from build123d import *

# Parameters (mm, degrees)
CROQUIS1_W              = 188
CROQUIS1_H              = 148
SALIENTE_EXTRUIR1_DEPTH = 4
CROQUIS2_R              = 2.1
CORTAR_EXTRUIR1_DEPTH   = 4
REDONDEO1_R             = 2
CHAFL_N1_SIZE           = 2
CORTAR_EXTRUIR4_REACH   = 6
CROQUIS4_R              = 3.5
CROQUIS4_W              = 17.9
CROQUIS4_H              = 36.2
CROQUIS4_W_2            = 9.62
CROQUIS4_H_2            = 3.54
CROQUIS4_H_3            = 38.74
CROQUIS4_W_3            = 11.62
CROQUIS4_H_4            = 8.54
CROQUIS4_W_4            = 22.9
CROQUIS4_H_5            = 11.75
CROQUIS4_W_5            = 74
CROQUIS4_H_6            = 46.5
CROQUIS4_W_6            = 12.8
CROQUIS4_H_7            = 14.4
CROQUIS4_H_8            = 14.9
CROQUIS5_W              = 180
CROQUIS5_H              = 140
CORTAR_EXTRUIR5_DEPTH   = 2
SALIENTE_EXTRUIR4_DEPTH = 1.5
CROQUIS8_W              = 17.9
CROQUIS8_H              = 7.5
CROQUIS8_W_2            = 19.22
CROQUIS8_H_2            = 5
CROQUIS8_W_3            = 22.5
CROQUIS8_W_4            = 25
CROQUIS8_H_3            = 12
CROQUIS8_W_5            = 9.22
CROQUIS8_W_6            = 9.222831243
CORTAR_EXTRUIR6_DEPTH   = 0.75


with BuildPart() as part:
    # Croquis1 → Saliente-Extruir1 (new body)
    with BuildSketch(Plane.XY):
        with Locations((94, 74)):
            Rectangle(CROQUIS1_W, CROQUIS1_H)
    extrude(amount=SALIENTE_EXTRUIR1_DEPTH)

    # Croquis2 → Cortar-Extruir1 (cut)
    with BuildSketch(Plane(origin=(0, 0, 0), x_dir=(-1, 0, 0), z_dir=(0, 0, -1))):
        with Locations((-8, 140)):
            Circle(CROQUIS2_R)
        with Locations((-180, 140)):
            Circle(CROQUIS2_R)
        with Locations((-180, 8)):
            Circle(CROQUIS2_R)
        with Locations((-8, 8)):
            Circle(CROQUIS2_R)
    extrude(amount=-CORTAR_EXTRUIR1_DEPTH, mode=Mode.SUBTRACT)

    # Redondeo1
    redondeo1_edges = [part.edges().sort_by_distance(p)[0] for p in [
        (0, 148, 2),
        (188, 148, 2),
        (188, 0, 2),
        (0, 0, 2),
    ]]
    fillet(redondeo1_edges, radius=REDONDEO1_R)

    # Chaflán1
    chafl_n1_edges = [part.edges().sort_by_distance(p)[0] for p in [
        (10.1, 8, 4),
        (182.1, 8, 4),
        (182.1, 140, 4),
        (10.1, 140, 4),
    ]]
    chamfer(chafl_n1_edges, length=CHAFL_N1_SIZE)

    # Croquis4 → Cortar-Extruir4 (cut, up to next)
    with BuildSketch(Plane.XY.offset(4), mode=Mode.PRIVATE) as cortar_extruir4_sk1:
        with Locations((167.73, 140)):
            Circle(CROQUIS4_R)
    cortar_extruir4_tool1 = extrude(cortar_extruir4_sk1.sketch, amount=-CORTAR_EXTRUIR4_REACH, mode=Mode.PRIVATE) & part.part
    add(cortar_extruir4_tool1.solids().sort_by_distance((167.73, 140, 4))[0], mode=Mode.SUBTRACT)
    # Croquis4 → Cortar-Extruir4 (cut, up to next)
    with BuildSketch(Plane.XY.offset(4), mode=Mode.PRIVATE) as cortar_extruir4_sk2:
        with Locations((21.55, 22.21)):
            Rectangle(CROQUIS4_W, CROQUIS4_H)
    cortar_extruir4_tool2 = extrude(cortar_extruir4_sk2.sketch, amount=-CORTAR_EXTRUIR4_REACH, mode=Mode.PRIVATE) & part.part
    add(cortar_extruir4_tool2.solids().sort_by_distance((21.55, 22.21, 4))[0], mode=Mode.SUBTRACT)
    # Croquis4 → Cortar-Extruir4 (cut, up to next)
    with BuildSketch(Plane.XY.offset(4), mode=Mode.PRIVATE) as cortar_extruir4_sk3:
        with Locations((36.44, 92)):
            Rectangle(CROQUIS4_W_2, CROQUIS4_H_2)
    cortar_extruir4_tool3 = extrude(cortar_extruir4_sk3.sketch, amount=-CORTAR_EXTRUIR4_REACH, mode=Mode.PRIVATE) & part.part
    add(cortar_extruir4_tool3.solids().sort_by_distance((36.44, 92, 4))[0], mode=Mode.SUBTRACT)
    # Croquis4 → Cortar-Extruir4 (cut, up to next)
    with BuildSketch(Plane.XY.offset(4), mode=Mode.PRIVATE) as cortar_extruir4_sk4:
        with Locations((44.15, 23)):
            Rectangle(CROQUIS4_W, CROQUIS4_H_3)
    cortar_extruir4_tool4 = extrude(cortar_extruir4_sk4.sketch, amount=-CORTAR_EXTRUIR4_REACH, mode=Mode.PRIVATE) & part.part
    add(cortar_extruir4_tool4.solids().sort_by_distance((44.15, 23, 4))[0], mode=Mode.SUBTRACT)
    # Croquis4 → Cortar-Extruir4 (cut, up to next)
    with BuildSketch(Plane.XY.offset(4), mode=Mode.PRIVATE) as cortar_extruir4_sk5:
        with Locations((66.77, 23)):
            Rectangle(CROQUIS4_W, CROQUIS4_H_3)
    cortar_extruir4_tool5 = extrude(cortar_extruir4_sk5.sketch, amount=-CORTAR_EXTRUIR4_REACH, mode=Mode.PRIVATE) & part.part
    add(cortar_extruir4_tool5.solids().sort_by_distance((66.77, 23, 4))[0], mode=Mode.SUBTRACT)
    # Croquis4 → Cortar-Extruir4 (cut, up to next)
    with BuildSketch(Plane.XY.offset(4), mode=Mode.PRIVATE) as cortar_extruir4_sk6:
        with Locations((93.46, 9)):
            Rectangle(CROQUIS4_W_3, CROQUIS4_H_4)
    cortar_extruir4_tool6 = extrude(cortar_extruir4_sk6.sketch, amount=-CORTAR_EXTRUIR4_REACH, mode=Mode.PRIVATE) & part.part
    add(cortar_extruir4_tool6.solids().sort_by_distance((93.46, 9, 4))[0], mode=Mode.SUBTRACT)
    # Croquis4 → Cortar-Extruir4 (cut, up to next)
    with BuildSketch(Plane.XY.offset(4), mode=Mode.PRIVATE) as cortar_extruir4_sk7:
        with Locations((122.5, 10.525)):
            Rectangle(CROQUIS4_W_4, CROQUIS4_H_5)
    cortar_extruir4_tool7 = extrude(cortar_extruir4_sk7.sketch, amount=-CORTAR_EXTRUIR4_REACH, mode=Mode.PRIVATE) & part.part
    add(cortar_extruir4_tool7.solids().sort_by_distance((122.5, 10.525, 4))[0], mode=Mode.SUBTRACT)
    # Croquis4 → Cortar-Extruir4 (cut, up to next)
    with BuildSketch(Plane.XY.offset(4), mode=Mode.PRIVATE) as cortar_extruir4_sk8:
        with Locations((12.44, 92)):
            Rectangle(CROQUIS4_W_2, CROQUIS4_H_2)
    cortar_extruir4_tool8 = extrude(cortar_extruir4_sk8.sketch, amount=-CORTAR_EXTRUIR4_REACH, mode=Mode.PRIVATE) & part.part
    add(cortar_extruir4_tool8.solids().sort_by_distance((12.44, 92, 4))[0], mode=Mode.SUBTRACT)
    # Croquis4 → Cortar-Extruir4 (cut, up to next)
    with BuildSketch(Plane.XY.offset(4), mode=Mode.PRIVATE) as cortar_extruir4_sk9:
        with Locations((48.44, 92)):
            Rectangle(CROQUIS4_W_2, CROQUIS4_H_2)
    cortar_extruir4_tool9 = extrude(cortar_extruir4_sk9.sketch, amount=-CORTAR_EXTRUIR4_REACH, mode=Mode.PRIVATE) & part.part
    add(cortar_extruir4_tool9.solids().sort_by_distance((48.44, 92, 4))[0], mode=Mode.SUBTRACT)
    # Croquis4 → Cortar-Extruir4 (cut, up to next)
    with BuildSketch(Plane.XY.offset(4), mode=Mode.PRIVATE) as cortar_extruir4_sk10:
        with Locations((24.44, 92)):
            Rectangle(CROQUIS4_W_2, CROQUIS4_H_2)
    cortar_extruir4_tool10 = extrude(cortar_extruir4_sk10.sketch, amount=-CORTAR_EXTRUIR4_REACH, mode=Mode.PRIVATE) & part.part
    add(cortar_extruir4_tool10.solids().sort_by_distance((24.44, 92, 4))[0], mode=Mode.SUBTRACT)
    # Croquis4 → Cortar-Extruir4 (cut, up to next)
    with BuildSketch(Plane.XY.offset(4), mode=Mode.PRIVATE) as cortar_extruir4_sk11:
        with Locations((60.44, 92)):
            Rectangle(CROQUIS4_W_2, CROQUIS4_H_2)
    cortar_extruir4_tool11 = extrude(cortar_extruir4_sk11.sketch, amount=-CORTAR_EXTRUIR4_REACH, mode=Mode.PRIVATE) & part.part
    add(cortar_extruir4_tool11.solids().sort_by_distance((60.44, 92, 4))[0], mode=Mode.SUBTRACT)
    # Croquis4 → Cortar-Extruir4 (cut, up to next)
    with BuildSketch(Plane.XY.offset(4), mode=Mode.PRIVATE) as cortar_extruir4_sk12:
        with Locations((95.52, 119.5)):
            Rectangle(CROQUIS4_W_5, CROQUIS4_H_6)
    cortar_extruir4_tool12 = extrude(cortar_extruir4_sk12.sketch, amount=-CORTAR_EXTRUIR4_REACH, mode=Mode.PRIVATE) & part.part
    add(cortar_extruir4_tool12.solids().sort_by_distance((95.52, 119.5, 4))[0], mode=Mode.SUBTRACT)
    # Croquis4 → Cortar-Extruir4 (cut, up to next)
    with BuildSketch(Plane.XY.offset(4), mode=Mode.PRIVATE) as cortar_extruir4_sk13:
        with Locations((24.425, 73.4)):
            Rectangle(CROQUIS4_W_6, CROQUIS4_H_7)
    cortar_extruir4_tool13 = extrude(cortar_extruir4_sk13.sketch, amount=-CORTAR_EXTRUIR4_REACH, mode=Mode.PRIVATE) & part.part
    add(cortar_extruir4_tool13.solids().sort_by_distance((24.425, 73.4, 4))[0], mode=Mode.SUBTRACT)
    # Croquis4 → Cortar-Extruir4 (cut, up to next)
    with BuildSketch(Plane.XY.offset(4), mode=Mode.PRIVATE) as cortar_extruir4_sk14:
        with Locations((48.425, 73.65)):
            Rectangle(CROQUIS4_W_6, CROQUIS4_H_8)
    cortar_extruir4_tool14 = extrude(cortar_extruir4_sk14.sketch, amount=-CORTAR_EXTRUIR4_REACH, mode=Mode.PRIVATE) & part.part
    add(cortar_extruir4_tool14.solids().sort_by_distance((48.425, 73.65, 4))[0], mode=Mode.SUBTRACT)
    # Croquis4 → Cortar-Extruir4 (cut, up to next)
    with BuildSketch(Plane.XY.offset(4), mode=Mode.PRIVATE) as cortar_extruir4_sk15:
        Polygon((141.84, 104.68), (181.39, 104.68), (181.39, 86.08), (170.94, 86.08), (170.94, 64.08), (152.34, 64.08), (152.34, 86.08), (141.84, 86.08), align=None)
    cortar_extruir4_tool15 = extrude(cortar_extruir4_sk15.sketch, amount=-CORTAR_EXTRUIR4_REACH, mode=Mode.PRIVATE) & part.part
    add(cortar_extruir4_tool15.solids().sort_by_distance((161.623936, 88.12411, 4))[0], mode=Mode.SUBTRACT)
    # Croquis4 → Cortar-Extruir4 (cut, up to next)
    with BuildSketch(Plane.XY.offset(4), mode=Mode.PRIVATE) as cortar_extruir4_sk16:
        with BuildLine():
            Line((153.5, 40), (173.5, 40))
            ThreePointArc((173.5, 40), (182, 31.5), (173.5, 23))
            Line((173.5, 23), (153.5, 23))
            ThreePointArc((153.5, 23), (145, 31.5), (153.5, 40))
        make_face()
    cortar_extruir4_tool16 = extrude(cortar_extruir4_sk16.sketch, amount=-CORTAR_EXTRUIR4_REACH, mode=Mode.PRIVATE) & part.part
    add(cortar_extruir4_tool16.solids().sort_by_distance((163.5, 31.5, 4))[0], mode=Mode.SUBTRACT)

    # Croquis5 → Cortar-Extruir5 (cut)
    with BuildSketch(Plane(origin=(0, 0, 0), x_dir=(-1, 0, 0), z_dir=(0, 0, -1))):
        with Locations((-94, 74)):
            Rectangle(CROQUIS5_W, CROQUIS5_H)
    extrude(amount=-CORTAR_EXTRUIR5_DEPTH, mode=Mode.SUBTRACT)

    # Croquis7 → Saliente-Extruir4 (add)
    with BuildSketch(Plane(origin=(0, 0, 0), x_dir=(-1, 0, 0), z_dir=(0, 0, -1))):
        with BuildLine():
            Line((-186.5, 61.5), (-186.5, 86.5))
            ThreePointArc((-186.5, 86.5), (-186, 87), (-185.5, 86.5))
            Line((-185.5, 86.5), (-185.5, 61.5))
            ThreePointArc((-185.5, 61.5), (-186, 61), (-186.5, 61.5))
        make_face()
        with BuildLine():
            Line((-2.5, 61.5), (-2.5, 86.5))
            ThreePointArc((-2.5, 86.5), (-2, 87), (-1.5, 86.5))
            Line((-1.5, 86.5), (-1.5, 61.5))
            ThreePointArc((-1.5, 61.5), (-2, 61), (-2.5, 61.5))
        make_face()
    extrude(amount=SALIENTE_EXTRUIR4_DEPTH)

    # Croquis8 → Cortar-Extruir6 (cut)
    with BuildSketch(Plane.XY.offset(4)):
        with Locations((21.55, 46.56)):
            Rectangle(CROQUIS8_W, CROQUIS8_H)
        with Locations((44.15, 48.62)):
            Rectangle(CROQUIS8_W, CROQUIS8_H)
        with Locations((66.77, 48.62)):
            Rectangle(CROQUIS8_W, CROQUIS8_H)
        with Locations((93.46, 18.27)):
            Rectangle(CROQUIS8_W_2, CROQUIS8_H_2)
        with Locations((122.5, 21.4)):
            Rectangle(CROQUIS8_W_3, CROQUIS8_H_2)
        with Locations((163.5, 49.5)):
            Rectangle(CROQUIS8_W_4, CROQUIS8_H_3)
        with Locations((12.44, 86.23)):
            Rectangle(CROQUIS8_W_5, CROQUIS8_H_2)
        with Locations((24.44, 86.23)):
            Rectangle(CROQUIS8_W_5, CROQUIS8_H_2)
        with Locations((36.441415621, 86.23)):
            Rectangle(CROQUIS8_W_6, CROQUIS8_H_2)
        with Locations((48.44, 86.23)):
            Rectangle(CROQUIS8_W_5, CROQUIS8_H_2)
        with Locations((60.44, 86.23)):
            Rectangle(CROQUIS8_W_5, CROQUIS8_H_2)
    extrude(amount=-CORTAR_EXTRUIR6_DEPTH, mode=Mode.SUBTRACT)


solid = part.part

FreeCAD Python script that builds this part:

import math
import FreeCAD as App
import Part
import Sketcher
Q = App.Units.Quantity


def edges_at(feature, points):
    """Names of the edges that pass closest to the given points."""
    edges = feature.Shape.Edges
    near = lambda p: min(range(len(edges)), key=lambda i: edges[i].distToShape(Part.Vertex(*p))[0])
    return sorted({f"Edge{near(p) + 1}" for p in points})

doc = App.newDocument("Part")
body = doc.addObject("PartDesign::Body", "Body")

sketch1 = doc.addObject("Sketcher::SketchObject", "Sketch")
body.addObject(sketch1)
sketch1.AttachmentSupport = (doc.XY_Plane, [""])
sketch1.MapMode = "FlatFace"
sketch1.addGeometry([
    Part.LineSegment(App.Vector(0, 148, 0), App.Vector(0, 0, 0)),
    Part.LineSegment(App.Vector(0, 0, 0), App.Vector(188, 0, 0)),
    Part.LineSegment(App.Vector(188, 0, 0), App.Vector(188, 148, 0)),
    Part.LineSegment(App.Vector(188, 148, 0), App.Vector(0, 148, 0)),
], False)
sketch1.addConstraint([
    Sketcher.Constraint("Coincident", 0, 2, 1, 1),
    Sketcher.Constraint("Coincident", 1, 2, 2, 1),
    Sketcher.Constraint("Coincident", 2, 2, 3, 1),
    Sketcher.Constraint("Coincident", 3, 2, 0, 1),
    Sketcher.Constraint("Vertical", 0),
    Sketcher.Constraint("Horizontal", 1),
    Sketcher.Constraint("Vertical", 2),
    Sketcher.Constraint("Horizontal", 3),
    Sketcher.Constraint("Coincident", 0, 2, -1, 1),
    Sketcher.Constraint("DistanceX", 1, 1, 1, 2, Q("188 mm")),
    Sketcher.Constraint("DistanceY", 0, 2, 0, 1, Q("148 mm")),
])
pad1 = doc.addObject("PartDesign::Pad", "Pad")
body.addObject(pad1)
pad1.Profile = sketch1
pad1.Length = 4

sketch2 = doc.addObject("Sketcher::SketchObject", "Sketch001")
body.addObject(sketch2)
sketch2.AttachmentSupport = (doc.XY_Plane, [""])
sketch2.MapMode = "FlatFace"
sketch2.addGeometry([
    Part.Circle(App.Vector(8, 140, 0), App.Vector(0, 0, 1), 2.1),
    Part.Circle(App.Vector(180, 140, 0), App.Vector(0, 0, 1), 2.1),
    Part.Circle(App.Vector(180, 8, 0), App.Vector(0, 0, 1), 2.1),
    Part.Circle(App.Vector(8, 8, 0), App.Vector(0, 0, 1), 2.1),
], False)
sketch2.addConstraint([
    Sketcher.Constraint("Equal", 0, 1),
    Sketcher.Constraint("Equal", 1, 2),
    Sketcher.Constraint("Equal", 2, 3),
    Sketcher.Constraint("Horizontal", 0, 3, 1, 3),
    Sketcher.Constraint("Horizontal", 2, 3, 3, 3),
    Sketcher.Constraint("Vertical", 1, 3, 2, 3),
    Sketcher.Constraint("Vertical", 0, 3, 3, 3),
    Sketcher.Constraint("Diameter", 0, Q("4.2 mm")),
    Sketcher.Constraint("DistanceX", -1, 1, 0, 3, Q("8 mm")),
    Sketcher.Constraint("DistanceY", -1, 1, 0, 3, Q("140 mm")),
    Sketcher.Constraint("DistanceX", -1, 1, 1, 3, Q("180 mm")),
    Sketcher.Constraint("DistanceY", -1, 1, 2, 3, Q("8 mm")),
])
pocket1 = doc.addObject("PartDesign::Pocket", "Pocket")
body.addObject(pocket1)
pocket1.Profile = sketch2
pocket1.Length = 4
pocket1.Reversed = True
doc.recompute()

fillet = doc.addObject("PartDesign::Fillet", "Fillet")
body.addObject(fillet)
fillet.Base = (pocket1, edges_at(pocket1, [
    (0, 148, 2),
    (188, 148, 2),
    (188, 0, 2),
    (0, 0, 2),
]))
fillet.Radius = 2
doc.recompute()

chamfer = doc.addObject("PartDesign::Chamfer", "Chamfer")
body.addObject(chamfer)
chamfer.Base = (fillet, edges_at(fillet, [
    (10.1, 8, 4),
    (182.1, 8, 4),
    (182.1, 140, 4),
    (10.1, 140, 4),
]))
chamfer.Size = 2

sketch3 = doc.addObject("Sketcher::SketchObject", "Sketch002")
body.addObject(sketch3)
sketch3.AttachmentSupport = (doc.XY_Plane, [""])
sketch3.MapMode = "FlatFace"
sketch3.AttachmentOffset = App.Placement(App.Vector(0, 0, 4), App.Rotation())
sketch3.addGeometry(Part.Circle(App.Vector(167.7, 140, 0), App.Vector(0, 0, 1), 3.5), False)
sketch3.addConstraint([
    Sketcher.Constraint("Diameter", 0, Q("7 mm")),
    Sketcher.Constraint("DistanceY", -1, 1, 0, 3, Q("140 mm")),
    Sketcher.Constraint("DistanceX", -1, 1, 0, 3, Q("167.73 mm")),
])
pocket2 = doc.addObject("PartDesign::Pocket", "Pocket001")
body.addObject(pocket2)
pocket2.Profile = sketch3
pocket2.Type = "UpToFirst"

sketch4 = doc.addObject("Sketcher::SketchObject", "Sketch003")
body.addObject(sketch4)
sketch4.AttachmentSupport = (doc.XY_Plane, [""])
sketch4.MapMode = "FlatFace"
sketch4.AttachmentOffset = App.Placement(App.Vector(0, 0, 4), App.Rotation())
sketch4.addGeometry([
    Part.LineSegment(App.Vector(13, 40, 0), App.Vector(13, 4, 0)),
    Part.LineSegment(App.Vector(13, 4, 0), App.Vector(30, 4, 0)),
    Part.LineSegment(App.Vector(30, 4, 0), App.Vector(30, 40, 0)),
    Part.LineSegment(App.Vector(30, 40, 0), App.Vector(13, 40, 0)),
], False)
sketch4.addConstraint([
    Sketcher.Constraint("Coincident", 0, 2, 1, 1),
    Sketcher.Constraint("Coincident", 1, 2, 2, 1),
    Sketcher.Constraint("Coincident", 2, 2, 3, 1),
    Sketcher.Constraint("Coincident", 3, 2, 0, 1),
    Sketcher.Constraint("Vertical", 0),
    Sketcher.Constraint("Horizontal", 1),
    Sketcher.Constraint("Vertical", 2),
    Sketcher.Constraint("Horizontal", 3),
    Sketcher.Constraint("DistanceX", 1, 1, 1, 2, Q("17.9 mm")),
    Sketcher.Constraint("DistanceY", 0, 2, 0, 1, Q("36.2 mm")),
    Sketcher.Constraint("DistanceX", -1, 1, 0, 2, Q("12.6 mm")),
    Sketcher.Constraint("DistanceY", -1, 1, 0, 2, Q("4.11 mm")),
])
pocket3 = doc.addObject("PartDesign::Pocket", "Pocket002")
body.addObject(pocket3)
pocket3.Profile = sketch4
pocket3.Type = "UpToFirst"

sketch5 = doc.addObject("Sketcher::SketchObject", "Sketch004")
body.addObject(sketch5)
sketch5.AttachmentSupport = (doc.XY_Plane, [""])
sketch5.MapMode = "FlatFace"
sketch5.AttachmentOffset = App.Placement(App.Vector(0, 0, 4), App.Rotation())
sketch5.addGeometry([
    Part.LineSegment(App.Vector(31.6, 93.8, 0), App.Vector(31.6, 90.2, 0)),
    Part.LineSegment(App.Vector(31.6, 90.2, 0), App.Vector(41.2, 90.2, 0)),
    Part.LineSegment(App.Vector(41.2, 90.2, 0), App.Vector(41.2, 93.8, 0)),
    Part.LineSegment(App.Vector(41.2, 93.8, 0), App.Vector(31.6, 93.8, 0)),
], False)
sketch5.addConstraint([
    Sketcher.Constraint("Coincident", 0, 2, 1, 1),
    Sketcher.Constraint("Coincident", 1, 2, 2, 1),
    Sketcher.Constraint("Coincident", 2, 2, 3, 1),
    Sketcher.Constraint("Coincident", 3, 2, 0, 1),
    Sketcher.Constraint("Vertical", 0),
    Sketcher.Constraint("Horizontal", 1),
    Sketcher.Constraint("Vertical", 2),
    Sketcher.Constraint("Horizontal", 3),
    Sketcher.Constraint("DistanceX", 1, 1, 1, 2, Q("9.62 mm")),
    Sketcher.Constraint("DistanceY", 0, 2, 0, 1, Q("3.54 mm")),
    Sketcher.Constraint("DistanceX", -1, 1, 0, 2, Q("31.63 mm")),
    Sketcher.Constraint("DistanceY", -1, 1, 0, 2, Q("90.23 mm")),
])
pocket4 = doc.addObject("PartDesign::Pocket", "Pocket003")
body.addObject(pocket4)
pocket4.Profile = sketch5
pocket4.Type = "UpToFirst"

sketch6 = doc.addObject("Sketcher::SketchObject", "Sketch005")
body.addObject(sketch6)
sketch6.AttachmentSupport = (doc.XY_Plane, [""])
sketch6.MapMode = "FlatFace"
sketch6.AttachmentOffset = App.Placement(App.Vector(0, 0, 4), App.Rotation())
sketch6.addGeometry([
    Part.LineSegment(App.Vector(35, 42, 0), App.Vector(35, 4, 0)),
    Part.LineSegment(App.Vector(35, 4, 0), App.Vector(53, 4, 0)),
    Part.LineSegment(App.Vector(53, 4, 0), App.Vector(53, 42, 0)),
    Part.LineSegment(App.Vector(53, 42, 0), App.Vector(35, 42, 0)),
], False)
sketch6.addConstraint([
    Sketcher.Constraint("Coincident", 0, 2, 1, 1),
    Sketcher.Constraint("Coincident", 1, 2, 2, 1),
    Sketcher.Constraint("Coincident", 2, 2, 3, 1),
    Sketcher.Constraint("Coincident", 3, 2, 0, 1),
    Sketcher.Constraint("Vertical", 0),
    Sketcher.Constraint("Horizontal", 1),
    Sketcher.Constraint("Vertical", 2),
    Sketcher.Constraint("Horizontal", 3),
    Sketcher.Constraint("DistanceX", 1, 1, 1, 2, Q("17.9 mm")),
    Sketcher.Constraint("DistanceY", 0, 2, 0, 1, Q("38.74 mm")),
    Sketcher.Constraint("DistanceX", -1, 1, 0, 2, Q("35.2 mm")),
    Sketcher.Constraint("DistanceY", -1, 1, 0, 2, Q("3.63 mm")),
])
pocket5 = doc.addObject("PartDesign::Pocket", "Pocket004")
body.addObject(pocket5)
pocket5.Profile = sketch6
pocket5.Type = "UpToFirst"

sketch7 = doc.addObject("Sketcher::SketchObject", "Sketch006")
body.addObject(sketch7)
sketch7.AttachmentSupport = (doc.XY_Plane, [""])
sketch7.MapMode = "FlatFace"
sketch7.AttachmentOffset = App.Placement(App.Vector(0, 0, 4), App.Rotation())
sketch7.addGeometry([
    Part.LineSegment(App.Vector(58, 42, 0), App.Vector(58, 4, 0)),
    Part.LineSegment(App.Vector(58, 4, 0), App.Vector(76, 4, 0)),
    Part.LineSegment(App.Vector(76, 4, 0), App.Vector(76, 42, 0)),
    Part.LineSegment(App.Vector(76, 42, 0), App.Vector(58, 42, 0)),
], False)
sketch7.addConstraint([
    Sketcher.Constraint("Coincident", 0, 2, 1, 1),
    Sketcher.Constraint("Coincident", 1, 2, 2, 1),
    Sketcher.Constraint("Coincident", 2, 2, 3, 1),
    Sketcher.Constraint("Coincident", 3, 2, 0, 1),
    Sketcher.Constraint("Vertical", 0),
    Sketcher.Constraint("Horizontal", 1),
    Sketcher.Constraint("Vertical", 2),
    Sketcher.Constraint("Horizontal", 3),
    Sketcher.Constraint("DistanceX", 1, 1, 1, 2, Q("17.9 mm")),
    Sketcher.Constraint("DistanceY", 0, 2, 0, 1, Q("38.74 mm")),
    Sketcher.Constraint("DistanceX", -1, 1, 0, 2, Q("57.82 mm")),
    Sketcher.Constraint("DistanceY", -1, 1, 0, 2, Q("3.63 mm")),
])
pocket6 = doc.addObject("PartDesign::Pocket", "Pocket005")
body.addObject(pocket6)
pocket6.Profile = sketch7
pocket6.Type = "UpToFirst"

sketch8 = doc.addObject("Sketcher::SketchObject", "Sketch007")
body.addObject(sketch8)
sketch8.AttachmentSupport = (doc.XY_Plane, [""])
sketch8.MapMode = "FlatFace"
sketch8.AttachmentOffset = App.Placement(App.Vector(0, 0, 4), App.Rotation())
sketch8.addGeometry([
    Part.LineSegment(App.Vector(88, 13, 0), App.Vector(88, 5, 0)),
    Part.LineSegment(App.Vector(88, 5, 0), App.Vector(99, 5, 0)),
    Part.LineSegment(App.Vector(99, 5, 0), App.Vector(99, 13, 0)),
    Part.LineSegment(App.Vector(99, 13, 0), App.Vector(88, 13, 0)),
], False)
sketch8.addConstraint([
    Sketcher.Constraint("Coincident", 0, 2, 1, 1),
    Sketcher.Constraint("Coincident", 1, 2, 2, 1),
    Sketcher.Constraint("Coincident", 2, 2, 3, 1),
    Sketcher.Constraint("Coincident", 3, 2, 0, 1),
    Sketcher.Constraint("Vertical", 0),
    Sketcher.Constraint("Horizontal", 1),
    Sketcher.Constraint("Vertical", 2),
    Sketcher.Constraint("Horizontal", 3),
    Sketcher.Constraint("DistanceX", 1, 1, 1, 2, Q("11.62 mm")),
    Sketcher.Constraint("DistanceY", 0, 2, 0, 1, Q("8.54 mm")),
    Sketcher.Constraint("DistanceX", -1, 1, 0, 2, Q("87.65 mm")),
    Sketcher.Constraint("DistanceY", -1, 1, 0, 2, Q("4.73 mm")),
])
pocket7 = doc.addObject("PartDesign::Pocket", "Pocket006")
body.addObject(pocket7)
pocket7.Profile = sketch8
pocket7.Type = "UpToFirst"

sketch9 = doc.addObject("Sketcher::SketchObject", "Sketch008")
body.addObject(sketch9)
sketch9.AttachmentSupport = (doc.XY_Plane, [""])
sketch9.MapMode = "FlatFace"
sketch9.AttachmentOffset = App.Placement(App.Vector(0, 0, 4), App.Rotation())
sketch9.addGeometry([
    Part.LineSegment(App.Vector(111, 16, 0), App.Vector(111, 5, 0)),
    Part.LineSegment(App.Vector(111, 5, 0), App.Vector(134, 5, 0)),
    Part.LineSegment(App.Vector(134, 5, 0), App.Vector(134, 16, 0)),
    Part.LineSegment(App.Vector(134, 16, 0), App.Vector(111, 16, 0)),
], False)
sketch9.addConstraint([
    Sketcher.Constraint("Coincident", 0, 2, 1, 1),
    Sketcher.Constraint("Coincident", 1, 2, 2, 1),
    Sketcher.Constraint("Coincident", 2, 2, 3, 1),
    Sketcher.Constraint("Coincident", 3, 2, 0, 1),
    Sketcher.Constraint("Vertical", 0),
    Sketcher.Constraint("Horizontal", 1),
    Sketcher.Constraint("Vertical", 2),
    Sketcher.Constraint("Horizontal", 3),
    Sketcher.Constraint("DistanceX", 1, 1, 1, 2, Q("22.9 mm")),
    Sketcher.Constraint("DistanceY", 0, 2, 0, 1, Q("11.75 mm")),
    Sketcher.Constraint("DistanceY", -1, 1, 2, 2, Q("16.4 mm")),
    Sketcher.Constraint("DistanceX", -1, 1, 0, 2, Q("111.05 mm")),
])
pocket8 = doc.addObject("PartDesign::Pocket", "Pocket007")
body.addObject(pocket8)
pocket8.Profile = sketch9
pocket8.Type = "UpToFirst"

sketch10 = doc.addObject("Sketcher::SketchObject", "Sketch009")
body.addObject(sketch10)
sketch10.AttachmentSupport = (doc.XY_Plane, [""])
sketch10.MapMode = "FlatFace"
sketch10.AttachmentOffset = App.Placement(App.Vector(0, 0, 4), App.Rotation())
sketch10.addGeometry([
    Part.LineSegment(App.Vector(7.6, 93.8, 0), App.Vector(7.6, 90.2, 0)),
    Part.LineSegment(App.Vector(7.6, 90.2, 0), App.Vector(17.2, 90.2, 0)),
    Part.LineSegment(App.Vector(17.2, 90.2, 0), App.Vector(17.2, 93.8, 0)),
    Part.LineSegment(App.Vector(17.2, 93.8, 0), App.Vector(7.6, 93.8, 0)),
], False)
sketch10.addConstraint([
    Sketcher.Constraint("Coincident", 0, 2, 1, 1),
    Sketcher.Constraint("Coincident", 1, 2, 2, 1),
    Sketcher.Constraint("Coincident", 2, 2, 3, 1),
    Sketcher.Constraint("Coincident", 3, 2, 0, 1),
    Sketcher.Constraint("Vertical", 0),
    Sketcher.Constraint("Horizontal", 1),
    Sketcher.Constraint("Vertical", 2),
    Sketcher.Constraint("Horizontal", 3),
    Sketcher.Constraint("DistanceX", 1, 1, 1, 2, Q("9.62 mm")),
    Sketcher.Constraint("DistanceY", 0, 2, 0, 1, Q("3.54 mm")),
    Sketcher.Constraint("DistanceX", -1, 1, 0, 2, Q("7.63 mm")),
    Sketcher.Constraint("DistanceY", -1, 1, 0, 2, Q("90.23 mm")),
])
pocket9 = doc.addObject("PartDesign::Pocket", "Pocket008")
body.addObject(pocket9)
pocket9.Profile = sketch10
pocket9.Type = "UpToFirst"

sketch11 = doc.addObject("Sketcher::SketchObject", "Sketch010")
body.addObject(sketch11)
sketch11.AttachmentSupport = (doc.XY_Plane, [""])
sketch11.MapMode = "FlatFace"
sketch11.AttachmentOffset = App.Placement(App.Vector(0, 0, 4), App.Rotation())
sketch11.addGeometry([
    Part.LineSegment(App.Vector(43.6, 93.8, 0), App.Vector(43.6, 90.2, 0)),
    Part.LineSegment(App.Vector(43.6, 90.2, 0), App.Vector(53.2, 90.2, 0)),
    Part.LineSegment(App.Vector(53.2, 90.2, 0), App.Vector(53.2, 93.8, 0)),
    Part.LineSegment(App.Vector(53.2, 93.8, 0), App.Vector(43.6, 93.8, 0)),
], False)
sketch11.addConstraint([
    Sketcher.Constraint("Coincident", 0, 2, 1, 1),
    Sketcher.Constraint("Coincident", 1, 2, 2, 1),
    Sketcher.Constraint("Coincident", 2, 2, 3, 1),
    Sketcher.Constraint("Coincident", 3, 2, 0, 1),
    Sketcher.Constraint("Vertical", 0),
    Sketcher.Constraint("Horizontal", 1),
    Sketcher.Constraint("Vertical", 2),
    Sketcher.Constraint("Horizontal", 3),
    Sketcher.Constraint("DistanceX", 1, 1, 1, 2, Q("9.62 mm")),
    Sketcher.Constraint("DistanceY", 0, 2, 0, 1, Q("3.54 mm")),
    Sketcher.Constraint("DistanceX", -1, 1, 0, 2, Q("43.63 mm")),
    Sketcher.Constraint("DistanceY", -1, 1, 0, 2, Q("90.23 mm")),
])
pocket10 = doc.addObject("PartDesign::Pocket", "Pocket009")
body.addObject(pocket10)
pocket10.Profile = sketch11
pocket10.Type = "UpToFirst"

sketch12 = doc.addObject("Sketcher::SketchObject", "Sketch011")
body.addObject(sketch12)
sketch12.AttachmentSupport = (doc.XY_Plane, [""])
sketch12.MapMode = "FlatFace"
sketch12.AttachmentOffset = App.Placement(App.Vector(0, 0, 4), App.Rotation())
sketch12.addGeometry([
    Part.LineSegment(App.Vector(19.6, 93.8, 0), App.Vector(19.6, 90.2, 0)),
    Part.LineSegment(App.Vector(19.6, 90.2, 0), App.Vector(29.2, 90.2, 0)),
    Part.LineSegment(App.Vector(29.2, 90.2, 0), App.Vector(29.2, 93.8, 0)),
    Part.LineSegment(App.Vector(29.2, 93.8, 0), App.Vector(19.6, 93.8, 0)),
], False)
sketch12.addConstraint([
    Sketcher.Constraint("Coincident", 0, 2, 1, 1),
    Sketcher.Constraint("Coincident", 1, 2, 2, 1),
    Sketcher.Constraint("Coincident", 2, 2, 3, 1),
    Sketcher.Constraint("Coincident", 3, 2, 0, 1),
    Sketcher.Constraint("Vertical", 0),
    Sketcher.Constraint("Horizontal", 1),
    Sketcher.Constraint("Vertical", 2),
    Sketcher.Constraint("Horizontal", 3),
    Sketcher.Constraint("DistanceX", 1, 1, 1, 2, Q("9.62 mm")),
    Sketcher.Constraint("DistanceY", 0, 2, 0, 1, Q("3.54 mm")),
    Sketcher.Constraint("DistanceX", -1, 1, 0, 2, Q("19.63 mm")),
    Sketcher.Constraint("DistanceY", -1, 1, 0, 2, Q("90.23 mm")),
])
pocket11 = doc.addObject("PartDesign::Pocket", "Pocket010")
body.addObject(pocket11)
pocket11.Profile = sketch12
pocket11.Type = "UpToFirst"

sketch13 = doc.addObject("Sketcher::SketchObject", "Sketch012")
body.addObject(sketch13)
sketch13.AttachmentSupport = (doc.XY_Plane, [""])
sketch13.MapMode = "FlatFace"
sketch13.AttachmentOffset = App.Placement(App.Vector(0, 0, 4), App.Rotation())
sketch13.addGeometry([
    Part.LineSegment(App.Vector(55.6, 93.8, 0), App.Vector(55.6, 90.2, 0)),
    Part.LineSegment(App.Vector(55.6, 90.2, 0), App.Vector(65.2, 90.2, 0)),
    Part.LineSegment(App.Vector(65.2, 90.2, 0), App.Vector(65.2, 93.8, 0)),
    Part.LineSegment(App.Vector(65.2, 93.8, 0), App.Vector(55.6, 93.8, 0)),
], False)
sketch13.addConstraint([
    Sketcher.Constraint("Coincident", 0, 2, 1, 1),
    Sketcher.Constraint("Coincident", 1, 2, 2, 1),
    Sketcher.Constraint("Coincident", 2, 2, 3, 1),
    Sketcher.Constraint("Coincident", 3, 2, 0, 1),
    Sketcher.Constraint("Vertical", 0),
    Sketcher.Constraint("Horizontal", 1),
    Sketcher.Constraint("Vertical", 2),
    Sketcher.Constraint("Horizontal", 3),
    Sketcher.Constraint("DistanceX", 1, 1, 1, 2, Q("9.62 mm")),
    Sketcher.Constraint("DistanceY", 0, 2, 0, 1, Q("3.54 mm")),
    Sketcher.Constraint("DistanceX", -1, 1, 0, 2, Q("55.63 mm")),
    Sketcher.Constraint("DistanceY", -1, 1, 0, 2, Q("90.23 mm")),
])
pocket12 = doc.addObject("PartDesign::Pocket", "Pocket011")
body.addObject(pocket12)
pocket12.Profile = sketch13
pocket12.Type = "UpToFirst"

sketch14 = doc.addObject("Sketcher::SketchObject", "Sketch013")
body.addObject(sketch14)
sketch14.AttachmentSupport = (doc.XY_Plane, [""])
sketch14.MapMode = "FlatFace"
sketch14.AttachmentOffset = App.Placement(App.Vector(0, 0, 4), App.Rotation())
sketch14.addGeometry([
    Part.LineSegment(App.Vector(59, 143, 0), App.Vector(59, 96, 0)),
    Part.LineSegment(App.Vector(59, 96, 0), App.Vector(133, 96, 0)),
    Part.LineSegment(App.Vector(133, 96, 0), App.Vector(133, 143, 0)),
    Part.LineSegment(App.Vector(133, 143, 0), App.Vector(59, 143, 0)),
], False)
sketch14.addConstraint([
    Sketcher.Constraint("Coincident", 0, 2, 1, 1),
    Sketcher.Constraint("Coincident", 1, 2, 2, 1),
    Sketcher.Constraint("Coincident", 2, 2, 3, 1),
    Sketcher.Constraint("Coincident", 3, 2, 0, 1),
    Sketcher.Constraint("Vertical", 0),
    Sketcher.Constraint("Horizontal", 1),
    Sketcher.Constraint("Vertical", 2),
    Sketcher.Constraint("Horizontal", 3),
    Sketcher.Constraint("DistanceX", 1, 1, 1, 2, Q("74 mm")),
    Sketcher.Constraint("DistanceY", 0, 2, 0, 1, Q("46.5 mm")),
    Sketcher.Constraint("DistanceX", -1, 1, 0, 2, Q("58.52 mm")),
    Sketcher.Constraint("DistanceY", -1, 1, 0, 2, Q("96.25 mm")),
])
pocket13 = doc.addObject("PartDesign::Pocket", "Pocket012")
body.addObject(pocket13)
pocket13.Profile = sketch14
pocket13.Type = "UpToFirst"

sketch15 = doc.addObject("Sketcher::SketchObject", "Sketch014")
body.addObject(sketch15)
sketch15.AttachmentSupport = (doc.XY_Plane, [""])
sketch15.MapMode = "FlatFace"
sketch15.AttachmentOffset = App.Placement(App.Vector(0, 0, 4), App.Rotation())
sketch15.addGeometry([
    Part.LineSegment(App.Vector(18, 81, 0), App.Vector(18, 66, 0)),
    Part.LineSegment(App.Vector(18, 66, 0), App.Vector(31, 66, 0)),
    Part.LineSegment(App.Vector(31, 66, 0), App.Vector(31, 81, 0)),
    Part.LineSegment(App.Vector(31, 81, 0), App.Vector(18, 81, 0)),
], False)
sketch15.addConstraint([
    Sketcher.Constraint("Coincident", 0, 2, 1, 1),
    Sketcher.Constraint("Coincident", 1, 2, 2, 1),
    Sketcher.Constraint("Coincident", 2, 2, 3, 1),
    Sketcher.Constraint("Coincident", 3, 2, 0, 1),
    Sketcher.Constraint("Vertical", 0),
    Sketcher.Constraint("Horizontal", 1),
    Sketcher.Constraint("Vertical", 2),
    Sketcher.Constraint("Horizontal", 3),
    Sketcher.Constraint("DistanceX", 1, 1, 1, 2, Q("12.8 mm")),
    Sketcher.Constraint("DistanceY", 0, 2, 0, 1, Q("14.4 mm")),
    Sketcher.Constraint("DistanceY", -1, 1, 0, 2, Q("66.2 mm")),
    Sketcher.Constraint("DistanceX", -1, 1, 0, 2, Q("18.025 mm")),
])
pocket14 = doc.addObject("PartDesign::Pocket", "Pocket013")
body.addObject(pocket14)
pocket14.Profile = sketch15
pocket14.Type = "UpToFirst"

sketch16 = doc.addObject("Sketcher::SketchObject", "Sketch015")
body.addObject(sketch16)
sketch16.AttachmentSupport = (doc.XY_Plane, [""])
sketch16.MapMode = "FlatFace"
sketch16.AttachmentOffset = App.Placement(App.Vector(0, 0, 4), App.Rotation())
sketch16.addGeometry([
    Part.LineSegment(App.Vector(42, 81, 0), App.Vector(42, 66, 0)),
    Part.LineSegment(App.Vector(42, 66, 0), App.Vector(55, 66, 0)),
    Part.LineSegment(App.Vector(55, 66, 0), App.Vector(55, 81, 0)),
    Part.LineSegment(App.Vector(55, 81, 0), App.Vector(42, 81, 0)),
], False)
sketch16.addConstraint([
    Sketcher.Constraint("Coincident", 0, 2, 1, 1),
    Sketcher.Constraint("Coincident", 1, 2, 2, 1),
    Sketcher.Constraint("Coincident", 2, 2, 3, 1),
    Sketcher.Constraint("Coincident", 3, 2, 0, 1),
    Sketcher.Constraint("Vertical", 0),
    Sketcher.Constraint("Horizontal", 1),
    Sketcher.Constraint("Vertical", 2),
    Sketcher.Constraint("Horizontal", 3),
    Sketcher.Constraint("DistanceX", 1, 1, 1, 2, Q("12.8 mm")),
    Sketcher.Constraint("DistanceY", 0, 2, 0, 1, Q("14.9 mm")),
    Sketcher.Constraint("DistanceY", -1, 1, 0, 2, Q("66.2 mm")),
    Sketcher.Constraint("DistanceX", -1, 1, 0, 2, Q("42.025 mm")),
])
pocket15 = doc.addObject("PartDesign::Pocket", "Pocket014")
body.addObject(pocket15)
pocket15.Profile = sketch16
pocket15.Type = "UpToFirst"

sketch17 = doc.addObject("Sketcher::SketchObject", "Sketch016")
body.addObject(sketch17)
sketch17.AttachmentSupport = (doc.XY_Plane, [""])
sketch17.MapMode = "FlatFace"
sketch17.AttachmentOffset = App.Placement(App.Vector(0, 0, 4), App.Rotation())
sketch17.addGeometry([
    Part.LineSegment(App.Vector(181, 105, 0), App.Vector(142, 105, 0)),
    Part.LineSegment(App.Vector(142, 105, 0), App.Vector(142, 86, 0)),
    Part.LineSegment(App.Vector(142, 86, 0), App.Vector(152, 86, 0)),
    Part.LineSegment(App.Vector(152, 86, 0), App.Vector(152, 64, 0)),
    Part.LineSegment(App.Vector(152, 64, 0), App.Vector(171, 64, 0)),
    Part.LineSegment(App.Vector(171, 64, 0), App.Vector(171, 86, 0)),
    Part.LineSegment(App.Vector(171, 86, 0), App.Vector(181, 86, 0)),
    Part.LineSegment(App.Vector(181, 86, 0), App.Vector(181, 105, 0)),
], False)
sketch17.addConstraint([
    Sketcher.Constraint("Coincident", 0, 2, 1, 1),
    Sketcher.Constraint("Coincident", 1, 2, 2, 1),
    Sketcher.Constraint("Coincident", 2, 2, 3, 1),
    Sketcher.Constraint("Coincident", 3, 2, 4, 1),
    Sketcher.Constraint("Coincident", 4, 2, 5, 1),
    Sketcher.Constraint("Coincident", 5, 2, 6, 1),
    Sketcher.Constraint("Coincident", 6, 2, 7, 1),
    Sketcher.Constraint("Coincident", 7, 2, 0, 1),
    Sketcher.Constraint("Horizontal", 0),
    Sketcher.Constraint("Vertical", 1),
    Sketcher.Constraint("Horizontal", 2),
    Sketcher.Constraint("Vertical", 3),
    Sketcher.Constraint("Horizontal", 4),
    Sketcher.Constraint("Vertical", 5),
    Sketcher.Constraint("Horizontal", 6),
    Sketcher.Constraint("Vertical", 7),
    Sketcher.Constraint("Horizontal", 2, 2, 5, 2),
    Sketcher.Constraint("Equal", 4, 1),
    Sketcher.Constraint("DistanceY", 3, 2, 3, 1, Q("22 mm")),
    Sketcher.Constraint("DistanceX", 2, 1, 2, 2, Q("10.5 mm")),
    Sketcher.Constraint("DistanceX", 4, 1, 4, 2, Q("18.6 mm")),
    Sketcher.Constraint("DistanceX", 0, 2, 0, 1, Q("39.55 mm")),
    Sketcher.Constraint("DistanceX", -1, 1, 0, 2, Q("141.84 mm")),
    Sketcher.Constraint("DistanceY", -1, 1, 0, 2, Q("104.68 mm")),
])
pocket16 = doc.addObject("PartDesign::Pocket", "Pocket015")
body.addObject(pocket16)
pocket16.Profile = sketch17
pocket16.Type = "UpToFirst"

sketch18 = doc.addObject("Sketcher::SketchObject", "Sketch017")
body.addObject(sketch18)
sketch18.AttachmentSupport = (doc.XY_Plane, [""])
sketch18.MapMode = "FlatFace"
sketch18.AttachmentOffset = App.Placement(App.Vector(0, 0, 4), App.Rotation())
sketch18.addGeometry([
    Part.LineSegment(App.Vector(174, 40, 0), App.Vector(154, 40, 0)),
    Part.ArcOfCircle(Part.Circle(App.Vector(154, 32, 0), App.Vector(0, 0, 1), 8), math.radians(90), math.radians(270)),
    Part.LineSegment(App.Vector(154, 23, 0), App.Vector(174, 23, 0)),
    Part.ArcOfCircle(Part.Circle(App.Vector(174, 32, 0), App.Vector(0, 0, 1), 8), math.radians(-90), math.radians(90)),
], False)
sketch18.addConstraint([
    Sketcher.Constraint("Tangent", 0, 2, 1, 1),
    Sketcher.Constraint("Tangent", 1, 2, 2, 1),
    Sketcher.Constraint("Tangent", 2, 2, 3, 1),
    Sketcher.Constraint("Tangent", 3, 2, 0, 1),
    Sketcher.Constraint("Horizontal", 0),
    Sketcher.Constraint("Horizontal", 2),
    Sketcher.Constraint("Radius", 1, Q("8.5 mm")),
    Sketcher.Constraint("DistanceX", 0, 2, 0, 1, Q("20 mm")),
    Sketcher.Constraint("DistanceY", -1, 1, 0, 2, Q("40 mm")),
    Sketcher.Constraint("DistanceX", -1, 1, 1, 3, Q("153.5 mm")),
])
pocket17 = doc.addObject("PartDesign::Pocket", "Pocket016")
body.addObject(pocket17)
pocket17.Profile = sketch18
pocket17.Type = "UpToFirst"

sketch19 = doc.addObject("Sketcher::SketchObject", "Sketch018")
body.addObject(sketch19)
sketch19.AttachmentSupport = (doc.XY_Plane, [""])
sketch19.MapMode = "FlatFace"
sketch19.addGeometry([
    Part.LineSegment(App.Vector(184, 144, 0), App.Vector(184, 4, 0)),
    Part.LineSegment(App.Vector(184, 4, 0), App.Vector(4, 4, 0)),
    Part.LineSegment(App.Vector(4, 4, 0), App.Vector(4, 144, 0)),
    Part.LineSegment(App.Vector(4, 144, 0), App.Vector(184, 144, 0)),
], False)
sketch19.addConstraint([
    Sketcher.Constraint("Coincident", 0, 2, 1, 1),
    Sketcher.Constraint("Coincident", 1, 2, 2, 1),
    Sketcher.Constraint("Coincident", 2, 2, 3, 1),
    Sketcher.Constraint("Coincident", 3, 2, 0, 1),
    Sketcher.Constraint("Vertical", 0),
    Sketcher.Constraint("Horizontal", 1),
    Sketcher.Constraint("Vertical", 2),
    Sketcher.Constraint("Horizontal", 3),
    Sketcher.Constraint("DistanceX", 1, 2, 1, 1, Q("180 mm")),
    Sketcher.Constraint("DistanceY", 0, 2, 0, 1, Q("140 mm")),
    Sketcher.Constraint("DistanceX", -1, 1, 0, 2, Q("184 mm")),
    Sketcher.Constraint("DistanceY", -1, 1, 0, 2, Q("4 mm")),
])
pocket18 = doc.addObject("PartDesign::Pocket", "Pocket017")
body.addObject(pocket18)
pocket18.Profile = sketch19
pocket18.Length = 2
pocket18.Reversed = True

sketch20 = doc.addObject("Sketcher::SketchObject", "Sketch019")
body.addObject(sketch20)
sketch20.AttachmentSupport = (doc.XY_Plane, [""])
sketch20.MapMode = "FlatFace"
sketch20.addGeometry([
    Part.LineSegment(App.Vector(186.5, 86.5, 0), App.Vector(186.5, 61.5, 0)),
    Part.ArcOfCircle(Part.Circle(App.Vector(186, 61.5, 0), App.Vector(0, 0, 1), 0.5), math.radians(180), math.radians(360)),
    Part.LineSegment(App.Vector(185.5, 61.5, 0), App.Vector(185.5, 86.5, 0)),
    Part.ArcOfCircle(Part.Circle(App.Vector(186, 86.5, 0), App.Vector(0, 0, 1), 0.5), math.radians(0), math.radians(180)),
    Part.LineSegment(App.Vector(2.5, 86.5, 0), App.Vector(2.5, 61.5, 0)),
    Part.ArcOfCircle(Part.Circle(App.Vector(2, 61.5, 0), App.Vector(0, 0, 1), 0.5), math.radians(180), math.radians(360)),
    Part.LineSegment(App.Vector(1.5, 61.5, 0), App.Vector(1.5, 86.5, 0)),
    Part.ArcOfCircle(Part.Circle(App.Vector(2, 86.5, 0), App.Vector(0, 0, 1), 0.5), math.radians(0), math.radians(180)),
], False)
sketch20.addConstraint([
    Sketcher.Constraint("Tangent", 0, 2, 1, 2),
    Sketcher.Constraint("Tangent", 1, 1, 2, 1),
    Sketcher.Constraint("Tangent", 2, 2, 3, 2),
    Sketcher.Constraint("Tangent", 3, 1, 0, 1),
    Sketcher.Constraint("Tangent", 4, 2, 5, 2),
    Sketcher.Constraint("Tangent", 5, 1, 6, 1),
    Sketcher.Constraint("Tangent", 6, 2, 7, 2),
    Sketcher.Constraint("Tangent", 7, 1, 4, 1),
    Sketcher.Constraint("Vertical", 0),
    Sketcher.Constraint("Vertical", 2),
    Sketcher.Constraint("Vertical", 4),
    Sketcher.Constraint("Vertical", 6),
    Sketcher.Constraint("Equal", 3, 5),
    Sketcher.Constraint("Horizontal", 1, 3, 5, 3),
    Sketcher.Constraint("Horizontal", 3, 3, 7, 3),
    Sketcher.Constraint("Radius", 1, Q("0.5 mm")),
    Sketcher.Constraint("DistanceY", 0, 2, 0, 1, Q("25 mm")),
    Sketcher.Constraint("DistanceX", -1, 1, 1, 3, Q("186 mm")),
    Sketcher.Constraint("DistanceX", -1, 1, 5, 3, Q("2 mm")),
    Sketcher.Constraint("DistanceY", -1, 1, 1, 3, Q("61.5 mm")),
])
pad2 = doc.addObject("PartDesign::Pad", "Pad001")
body.addObject(pad2)
pad2.Profile = sketch20
pad2.Length = 1.5
pad2.Reversed = True

sketch21 = doc.addObject("Sketcher::SketchObject", "Sketch020")
body.addObject(sketch21)
sketch21.AttachmentSupport = (doc.XY_Plane, [""])
sketch21.MapMode = "FlatFace"
sketch21.AttachmentOffset = App.Placement(App.Vector(0, 0, 4), App.Rotation())
sketch21.addGeometry([
    Part.LineSegment(App.Vector(13, 50, 0), App.Vector(13, 43, 0)),
    Part.LineSegment(App.Vector(13, 43, 0), App.Vector(30, 43, 0)),
    Part.LineSegment(App.Vector(30, 43, 0), App.Vector(30, 50, 0)),
    Part.LineSegment(App.Vector(30, 50, 0), App.Vector(13, 50, 0)),
    Part.LineSegment(App.Vector(35, 52, 0), App.Vector(35, 45, 0)),
    Part.LineSegment(App.Vector(35, 45, 0), App.Vector(53, 45, 0)),
    Part.LineSegment(App.Vector(53, 45, 0), App.Vector(53, 52, 0)),
    Part.LineSegment(App.Vector(53, 52, 0), App.Vector(35, 52, 0)),
    Part.LineSegment(App.Vector(58, 52, 0), App.Vector(58, 45, 0)),
    Part.LineSegment(App.Vector(58, 45, 0), App.Vector(76, 45, 0)),
    Part.LineSegment(App.Vector(76, 45, 0), App.Vector(76, 52, 0)),
    Part.LineSegment(App.Vector(76, 52, 0), App.Vector(58, 52, 0)),
    Part.LineSegment(App.Vector(84, 21, 0), App.Vector(84, 16, 0)),
    Part.LineSegment(App.Vector(84, 16, 0), App.Vector(103, 16, 0)),
    Part.LineSegment(App.Vector(103, 16, 0), App.Vector(103, 21, 0)),
    Part.LineSegment(App.Vector(103, 21, 0), App.Vector(84, 21, 0)),
    Part.LineSegment(App.Vector(111, 24, 0), App.Vector(111, 19, 0)),
    Part.LineSegment(App.Vector(111, 19, 0), App.Vector(134, 19, 0)),
    Part.LineSegment(App.Vector(134, 19, 0), App.Vector(134, 24, 0)),
    Part.LineSegment(App.Vector(134, 24, 0), App.Vector(111, 24, 0)),
    Part.LineSegment(App.Vector(151, 56, 0), App.Vector(151, 44, 0)),
    Part.LineSegment(App.Vector(151, 44, 0), App.Vector(176, 44, 0)),
    Part.LineSegment(App.Vector(176, 44, 0), App.Vector(176, 56, 0)),
    Part.LineSegment(App.Vector(176, 56, 0), App.Vector(151, 56, 0)),
    Part.LineSegment(App.Vector(8, 89, 0), App.Vector(8, 84, 0)),
    Part.LineSegment(App.Vector(8, 84, 0), App.Vector(17, 84, 0)),
    Part.LineSegment(App.Vector(17, 84, 0), App.Vector(17, 89, 0)),
    Part.LineSegment(App.Vector(17, 89, 0), App.Vector(8, 89, 0)),
    Part.LineSegment(App.Vector(20, 89, 0), App.Vector(20, 84, 0)),
    Part.LineSegment(App.Vector(20, 84, 0), App.Vector(29, 84, 0)),
    Part.LineSegment(App.Vector(29, 84, 0), App.Vector(29, 89, 0)),
    Part.LineSegment(App.Vector(29, 89, 0), App.Vector(20, 89, 0)),
    Part.LineSegment(App.Vector(32, 89, 0), App.Vector(32, 84, 0)),
    Part.LineSegment(App.Vector(32, 84, 0), App.Vector(41, 84, 0)),
    Part.LineSegment(App.Vector(41, 84, 0), App.Vector(41, 89, 0)),
    Part.LineSegment(App.Vector(41, 89, 0), App.Vector(32, 89, 0)),
    Part.LineSegment(App.Vector(44, 89, 0), App.Vector(44, 84, 0)),
    Part.LineSegment(App.Vector(44, 84, 0), App.Vector(53, 84, 0)),
    Part.LineSegment(App.Vector(53, 84, 0), App.Vector(53, 89, 0)),
    Part.LineSegment(App.Vector(53, 89, 0), App.Vector(44, 89, 0)),
    Part.LineSegment(App.Vector(56, 89, 0), App.Vector(56, 84, 0)),
    Part.LineSegment(App.Vector(56, 84, 0), App.Vector(65, 84, 0)),
    Part.LineSegment(App.Vector(65, 84, 0), App.Vector(65, 89, 0)),
    Part.LineSegment(App.Vector(65, 89, 0), App.Vector(56, 89, 0)),
], False)
sketch21.addConstraint([
    Sketcher.Constraint("Coincident", 0, 2, 1, 1),
    Sketcher.Constraint("Coincident", 1, 2, 2, 1),
    Sketcher.Constraint("Coincident", 2, 2, 3, 1),
    Sketcher.Constraint("Coincident", 3, 2, 0, 1),
    Sketcher.Constraint("Coincident", 4, 2, 5, 1),
    Sketcher.Constraint("Coincident", 5, 2, 6, 1),
    Sketcher.Constraint("Coincident", 6, 2, 7, 1),
    Sketcher.Constraint("Coincident", 7, 2, 4, 1),
    Sketcher.Constraint("Coincident", 8, 2, 9, 1),
    Sketcher.Constraint("Coincident", 9, 2, 10, 1),
    Sketcher.Constraint("Coincident", 10, 2, 11, 1),
    Sketcher.Constraint("Coincident", 11, 2, 8, 1),
    Sketcher.Constraint("Coincident", 12, 2, 13, 1),
    Sketcher.Constraint("Coincident", 13, 2, 14, 1),
    Sketcher.Constraint("Coincident", 14, 2, 15, 1),
    Sketcher.Constraint("Coincident", 15, 2, 12, 1),
    Sketcher.Constraint("Coincident", 16, 2, 17, 1),
    Sketcher.Constraint("Coincident", 17, 2, 18, 1),
    Sketcher.Constraint("Coincident", 18, 2, 19, 1),
    Sketcher.Constraint("Coincident", 19, 2, 16, 1),
    Sketcher.Constraint("Coincident", 20, 2, 21, 1),
    Sketcher.Constraint("Coincident", 21, 2, 22, 1),
    Sketcher.Constraint("Coincident", 22, 2, 23, 1),
    Sketcher.Constraint("Coincident", 23, 2, 20, 1),
    Sketcher.Constraint("Coincident", 24, 2, 25, 1),
    Sketcher.Constraint("Coincident", 25, 2, 26, 1),
    Sketcher.Constraint("Coincident", 26, 2, 27, 1),
    Sketcher.Constraint("Coincident", 27, 2, 24, 1),
    Sketcher.Constraint("Coincident", 28, 2, 29, 1),
    Sketcher.Constraint("Coincident", 29, 2, 30, 1),
    Sketcher.Constraint("Coincident", 30, 2, 31, 1),
    Sketcher.Constraint("Coincident", 31, 2, 28, 1),
    Sketcher.Constraint("Coincident", 32, 2, 33, 1),
    Sketcher.Constraint("Coincident", 33, 2, 34, 1),
    Sketcher.Constraint("Coincident", 34, 2, 35, 1),
    Sketcher.Constraint("Coincident", 35, 2, 32, 1),
    Sketcher.Constraint("Coincident", 36, 2, 37, 1),
    Sketcher.Constraint("Coincident", 37, 2, 38, 1),
    Sketcher.Constraint("Coincident", 38, 2, 39, 1),
    Sketcher.Constraint("Coincident", 39, 2, 36, 1),
    Sketcher.Constraint("Coincident", 40, 2, 41, 1),
    Sketcher.Constraint("Coincident", 41, 2, 42, 1),
    Sketcher.Constraint("Coincident", 42, 2, 43, 1),
    Sketcher.Constraint("Coincident", 43, 2, 40, 1),
    Sketcher.Constraint("Vertical", 0),
    Sketcher.Constraint("Horizontal", 1),
    Sketcher.Constraint("Vertical", 2),
    Sketcher.Constraint("Horizontal", 3),
    Sketcher.Constraint("Vertical", 4),
    Sketcher.Constraint("Horizontal", 5),
    Sketcher.Constraint("Vertical", 6),
    Sketcher.Constraint("Horizontal", 7),
    Sketcher.Constraint("Vertical", 8),
    Sketcher.Constraint("Horizontal", 9),
    Sketcher.Constraint("Vertical", 10),
    Sketcher.Constraint("Horizontal", 11),
    Sketcher.Constraint("Vertical", 12),
    Sketcher.Constraint("Horizontal", 13),
    Sketcher.Constraint("Vertical", 14),
    Sketcher.Constraint("Horizontal", 15),
    Sketcher.Constraint("Vertical", 16),
    Sketcher.Constraint("Horizontal", 17),
    Sketcher.Constraint("Vertical", 18),
    Sketcher.Constraint("Horizontal", 19),
    Sketcher.Constraint("Vertical", 20),
    Sketcher.Constraint("Horizontal", 21),
    Sketcher.Constraint("Vertical", 22),
    Sketcher.Constraint("Horizontal", 23),
    Sketcher.Constraint("Vertical", 24),
    Sketcher.Constraint("Horizontal", 25),
    Sketcher.Constraint("Vertical", 26),
    Sketcher.Constraint("Horizontal", 27),
    Sketcher.Constraint("Vertical", 28),
    Sketcher.Constraint("Horizontal", 29),
    Sketcher.Constraint("Vertical", 30),
    Sketcher.Constraint("Horizontal", 31),
    Sketcher.Constraint("Vertical", 32),
    Sketcher.Constraint("Horizontal", 33),
    Sketcher.Constraint("Vertical", 34),
    Sketcher.Constraint("Horizontal", 35),
    Sketcher.Constraint("Vertical", 36),
    Sketcher.Constraint("Horizontal", 37),
    Sketcher.Constraint("Vertical", 38),
    Sketcher.Constraint("Horizontal", 39),
    Sketcher.Constraint("Vertical", 40),
    Sketcher.Constraint("Horizontal", 41),
    Sketcher.Constraint("Vertical", 42),
    Sketcher.Constraint("Horizontal", 43),
    Sketcher.Constraint("Horizontal", 5, 2, 8, 2),
    Sketcher.Constraint("Horizontal", 7, 2, 10, 2),
    Sketcher.Constraint("Horizontal", 25, 2, 28, 2),
    Sketcher.Constraint("Horizontal", 27, 2, 30, 2),
    Sketcher.Constraint("Horizontal", 29, 2, 32, 2),
    Sketcher.Constraint("Horizontal", 31, 2, 34, 2),
    Sketcher.Constraint("Horizontal", 33, 2, 36, 2),
    Sketcher.Constraint("Horizontal", 35, 2, 38, 2),
    Sketcher.Constraint("Horizontal", 37, 2, 40, 2),
    Sketcher.Constraint("Horizontal", 39, 2, 42, 2),
    Sketcher.Constraint("Equal", 3, 5),
    Sketcher.Constraint("Equal", 7, 9),
    Sketcher.Constraint("Equal", 27, 29),
    Sketcher.Constraint("Equal", 31, 37),
    Sketcher.Constraint("Equal", 39, 41),
    Sketcher.Constraint("Equal", 2, 4),
    Sketcher.Constraint("Equal", 14, 16),
    Sketcher.Constraint("Equal", 18, 24),
    Sketcher.Constraint("DistanceX", 21, 1, 21, 2, Q("25 mm")),
    Sketcher.Constraint("DistanceY", 12, 2, 12, 1, Q("5 mm")),
    Sketcher.Constraint("DistanceY", 20, 2, 20, 1, Q("12 mm")),
    Sketcher.Constraint("DistanceX", 1, 1, 1, 2, Q("17.9 mm")),
    Sketcher.Constraint("DistanceX", 17, 1, 17, 2, Q("22.5 mm")),
    Sketcher.Constraint("DistanceY", 0, 2, 0, 1, Q("7.5 mm")),
    Sketcher.Constraint("DistanceX", -1, 1, 20, 2, Q("151 mm")),
    Sketcher.Constraint("DistanceX", 24, 2, 28, 2, Q("12 mm")),
    Sketcher.Constraint("DistanceX", 28, 2, 32, 2, Q("12 mm")),
    Sketcher.Constraint("DistanceX", 32, 2, 36, 2, Q("12 mm")),
    Sketcher.Constraint("DistanceX", 36, 2, 40, 2, Q("12 mm")),
    Sketcher.Constraint("DistanceX", 13, 1, 13, 2, Q("19.22 mm")),
    Sketcher.Constraint("DistanceX", 25, 1, 25, 2, Q("9.22 mm")),
    Sketcher.Constraint("DistanceX", -1, 1, 0, 2, Q("12.6 mm")),
    Sketcher.Constraint("DistanceX", -1, 1, 4, 2, Q("35.2 mm")),
    Sketcher.Constraint("DistanceY", -1, 1, 16, 2, Q("18.9 mm")),
    Sketcher.Constraint("DistanceY", -1, 1, 20, 2, Q("43.5 mm")),
    Sketcher.Constraint("DistanceY", 12, 2, 9, 2, Q("29.1 mm")),
    Sketcher.Constraint("DistanceX", 15, 2, 16, 2, Q("27.4 mm")),
    Sketcher.Constraint("DistanceY", -1, 1, 0, 2, Q("42.81 mm")),
    Sketcher.Constraint("DistanceY", -1, 1, 4, 2, Q("44.87 mm")),
    Sketcher.Constraint("DistanceX", -1, 1, 8, 2, Q("57.82 mm")),
    Sketcher.Constraint("DistanceX", -1, 1, 12, 2, Q("83.85 mm")),
    Sketcher.Constraint("DistanceX", -1, 1, 24, 2, Q("7.83 mm")),
    Sketcher.Constraint("DistanceY", -1, 1, 24, 2, Q("83.73 mm")),
    Sketcher.Constraint("DistanceX", 33, 1, 33, 2, Q("9.222831 mm")),
])
pocket19 = doc.addObject("PartDesign::Pocket", "Pocket018")
body.addObject(pocket19)
pocket19.Profile = sketch21
pocket19.Length = 0.75

doc.recompute()
